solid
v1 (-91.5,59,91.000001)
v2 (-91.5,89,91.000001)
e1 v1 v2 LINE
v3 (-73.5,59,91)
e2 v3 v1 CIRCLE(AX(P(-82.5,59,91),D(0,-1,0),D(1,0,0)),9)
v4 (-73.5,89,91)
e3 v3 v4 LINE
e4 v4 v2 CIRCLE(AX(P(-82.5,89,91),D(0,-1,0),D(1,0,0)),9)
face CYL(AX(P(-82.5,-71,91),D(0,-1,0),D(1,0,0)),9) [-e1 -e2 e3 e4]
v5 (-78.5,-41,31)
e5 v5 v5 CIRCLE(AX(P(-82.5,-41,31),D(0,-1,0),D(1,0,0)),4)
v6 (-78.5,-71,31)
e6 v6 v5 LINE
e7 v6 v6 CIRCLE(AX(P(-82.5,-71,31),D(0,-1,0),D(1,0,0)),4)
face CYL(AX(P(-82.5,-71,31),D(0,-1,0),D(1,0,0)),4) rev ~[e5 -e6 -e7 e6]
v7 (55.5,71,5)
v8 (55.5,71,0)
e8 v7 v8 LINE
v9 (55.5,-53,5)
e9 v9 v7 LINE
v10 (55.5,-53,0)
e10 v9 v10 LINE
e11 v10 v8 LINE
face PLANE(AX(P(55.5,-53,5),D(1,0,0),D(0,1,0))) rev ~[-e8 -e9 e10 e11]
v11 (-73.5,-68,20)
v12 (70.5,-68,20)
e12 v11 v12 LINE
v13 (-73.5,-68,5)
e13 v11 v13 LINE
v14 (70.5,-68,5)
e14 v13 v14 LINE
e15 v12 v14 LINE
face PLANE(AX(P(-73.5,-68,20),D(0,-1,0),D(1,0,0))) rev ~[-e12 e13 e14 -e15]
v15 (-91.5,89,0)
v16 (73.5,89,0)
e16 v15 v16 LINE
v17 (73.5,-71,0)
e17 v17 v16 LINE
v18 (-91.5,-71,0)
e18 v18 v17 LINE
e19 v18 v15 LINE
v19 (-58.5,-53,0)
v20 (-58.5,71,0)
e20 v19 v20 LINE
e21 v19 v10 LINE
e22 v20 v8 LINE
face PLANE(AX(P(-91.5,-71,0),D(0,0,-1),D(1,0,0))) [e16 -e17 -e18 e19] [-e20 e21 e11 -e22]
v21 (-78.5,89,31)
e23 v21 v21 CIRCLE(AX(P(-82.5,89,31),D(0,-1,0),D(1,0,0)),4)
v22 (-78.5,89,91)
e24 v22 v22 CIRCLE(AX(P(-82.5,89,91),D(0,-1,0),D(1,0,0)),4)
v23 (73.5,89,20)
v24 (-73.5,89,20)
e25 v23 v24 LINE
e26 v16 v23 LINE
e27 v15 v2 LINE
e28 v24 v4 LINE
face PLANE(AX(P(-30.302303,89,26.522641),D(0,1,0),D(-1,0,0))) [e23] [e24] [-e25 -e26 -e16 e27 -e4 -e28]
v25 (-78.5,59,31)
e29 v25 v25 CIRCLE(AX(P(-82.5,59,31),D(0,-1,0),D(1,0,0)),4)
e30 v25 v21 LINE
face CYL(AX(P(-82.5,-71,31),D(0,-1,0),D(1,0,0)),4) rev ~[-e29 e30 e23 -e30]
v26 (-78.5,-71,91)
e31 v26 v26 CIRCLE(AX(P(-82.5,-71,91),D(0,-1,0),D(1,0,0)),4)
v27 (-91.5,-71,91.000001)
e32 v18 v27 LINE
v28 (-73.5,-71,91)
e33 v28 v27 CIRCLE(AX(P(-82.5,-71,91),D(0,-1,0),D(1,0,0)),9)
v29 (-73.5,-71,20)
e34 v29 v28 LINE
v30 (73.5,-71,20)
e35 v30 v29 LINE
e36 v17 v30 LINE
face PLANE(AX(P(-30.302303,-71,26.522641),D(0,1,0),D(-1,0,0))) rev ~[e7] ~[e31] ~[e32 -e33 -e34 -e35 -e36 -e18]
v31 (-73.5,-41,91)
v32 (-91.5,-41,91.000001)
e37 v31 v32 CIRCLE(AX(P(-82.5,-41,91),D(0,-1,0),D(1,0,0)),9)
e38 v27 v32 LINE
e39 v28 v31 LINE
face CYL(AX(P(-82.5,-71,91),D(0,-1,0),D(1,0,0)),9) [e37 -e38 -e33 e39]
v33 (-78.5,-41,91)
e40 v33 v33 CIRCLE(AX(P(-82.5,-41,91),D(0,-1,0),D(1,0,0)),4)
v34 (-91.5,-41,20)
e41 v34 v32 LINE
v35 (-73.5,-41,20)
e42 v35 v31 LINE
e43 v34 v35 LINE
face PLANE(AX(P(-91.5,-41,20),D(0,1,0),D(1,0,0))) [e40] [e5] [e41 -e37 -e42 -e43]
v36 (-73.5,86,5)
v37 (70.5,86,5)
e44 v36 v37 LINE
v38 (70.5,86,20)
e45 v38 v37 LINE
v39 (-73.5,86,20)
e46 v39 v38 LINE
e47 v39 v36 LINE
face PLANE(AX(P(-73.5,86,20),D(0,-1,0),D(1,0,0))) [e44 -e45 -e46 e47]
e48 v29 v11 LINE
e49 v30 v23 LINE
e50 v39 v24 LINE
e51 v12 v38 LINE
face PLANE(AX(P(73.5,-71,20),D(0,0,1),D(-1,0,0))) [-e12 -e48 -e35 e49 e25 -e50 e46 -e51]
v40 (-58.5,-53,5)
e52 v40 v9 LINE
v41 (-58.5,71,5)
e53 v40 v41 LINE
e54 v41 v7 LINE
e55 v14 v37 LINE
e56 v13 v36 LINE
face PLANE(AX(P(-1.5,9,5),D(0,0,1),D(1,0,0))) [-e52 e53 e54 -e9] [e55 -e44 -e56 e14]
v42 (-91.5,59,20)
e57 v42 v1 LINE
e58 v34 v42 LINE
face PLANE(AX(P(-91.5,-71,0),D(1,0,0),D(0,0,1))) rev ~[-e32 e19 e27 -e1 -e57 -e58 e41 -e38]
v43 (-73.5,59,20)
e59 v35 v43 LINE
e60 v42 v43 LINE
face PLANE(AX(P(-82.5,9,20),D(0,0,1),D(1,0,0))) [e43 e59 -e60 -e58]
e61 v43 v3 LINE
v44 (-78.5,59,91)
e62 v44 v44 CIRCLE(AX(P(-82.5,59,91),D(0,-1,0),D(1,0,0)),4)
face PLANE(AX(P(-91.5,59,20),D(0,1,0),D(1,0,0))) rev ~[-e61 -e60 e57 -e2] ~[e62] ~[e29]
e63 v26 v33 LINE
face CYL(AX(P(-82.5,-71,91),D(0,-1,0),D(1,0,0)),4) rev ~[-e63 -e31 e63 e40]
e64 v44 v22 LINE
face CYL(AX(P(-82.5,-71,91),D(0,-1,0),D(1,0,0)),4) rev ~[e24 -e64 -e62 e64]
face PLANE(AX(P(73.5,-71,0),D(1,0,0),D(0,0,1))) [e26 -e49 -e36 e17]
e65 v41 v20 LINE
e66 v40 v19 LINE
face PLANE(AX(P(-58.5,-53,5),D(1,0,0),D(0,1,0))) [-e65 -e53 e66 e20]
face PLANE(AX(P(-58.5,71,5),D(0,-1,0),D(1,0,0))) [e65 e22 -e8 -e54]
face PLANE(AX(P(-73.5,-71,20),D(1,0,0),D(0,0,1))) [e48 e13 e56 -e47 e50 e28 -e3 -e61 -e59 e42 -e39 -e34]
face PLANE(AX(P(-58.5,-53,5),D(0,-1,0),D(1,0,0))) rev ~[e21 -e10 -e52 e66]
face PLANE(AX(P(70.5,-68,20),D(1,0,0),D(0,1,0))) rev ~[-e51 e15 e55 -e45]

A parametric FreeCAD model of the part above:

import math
import FreeCAD as App
import Part
import Sketcher
from FreeCAD import Vector


def add_polygon(sketch, points):
    """Adds a closed chain of lines whose ends are joined by coincident constraints."""
    first, n = sketch.GeometryCount, len(points)
    for a, b in zip(points, points[1:] + points[:1]):
        sketch.addGeometry(Part.LineSegment(App.Vector(*a, 0), App.Vector(*b, 0)), False)
    for i in range(n):
        sketch.addConstraint(Sketcher.Constraint("Coincident", first + i, 2, first + (i + 1) % n, 1))

doc = App.newDocument("Part")
params = doc.addObject("Spreadsheet::Sheet", "Params")
for row, (alias, value) in enumerate([
    ("sketch1_width", "18 mm"),
    ("sketch1_height", "100 mm"),
    ("pad1_length", "80 mm"),
    ("sketch2_width", "144 mm"),
    ("sketch2_height", "154 mm"),
    ("pad2_length", "15 mm"),
    ("sketch3_width", "114 mm"),
    ("sketch3_height", "124 mm"),
    ("pad3_length", "5 mm"),
    ("sketch4_diameter", "8 mm"),
    ("sketch4_radius", "9 mm"),
    ("sketch4_width", "165 mm"),
    ("sketch4_height", "91.000001 mm"),
    ("sketch4_height2", "20 mm"),
    ("pad4_length", "160 mm"),
], start=1):
    params.set(f"A{row}", alias)
    params.set(f"B{row}", "=" + value)
    params.setAlias(f"B{row}", alias)

body = doc.addObject("PartDesign::Body", "Body")

sketch1 = doc.addObject("Sketcher::SketchObject", "Sketch")
body.addObject(sketch1)
sketch1.AttachmentSupport = (doc.XY_Plane, [""])
sketch1.MapMode = "FlatFace"
sketch1.AttachmentOffset = App.Placement(Vector(0, 0, 20), App.Rotation())
add_polygon(sketch1, [(-92, 59), (-92, -41), (-74, -41), (-74, 59)])
sketch1.addConstraint(Sketcher.Constraint("Vertical", 0))
sketch1.addConstraint(Sketcher.Constraint("Horizontal", 1))
sketch1.addConstraint(Sketcher.Constraint("Vertical", 2))
sketch1.addConstraint(Sketcher.Constraint("Horizontal", 3))
sketch1.addConstraint(Sketcher.Constraint("DistanceX", 1, 1, 1, 2, 18.0))
sketch1.addConstraint(Sketcher.Constraint("DistanceY", 0, 2, 0, 1, 100.0))
sketch1.addConstraint(Sketcher.Constraint("DistanceY", 0, 2, -1, 1, 41.0))
sketch1.addConstraint(Sketcher.Constraint("DistanceX", 0, 2, -1, 1, 91.5))
sketch1.setExpression("Constraints[8]", "Params.sketch1_width")
sketch1.setExpression("Constraints[9]", "Params.sketch1_height")
pad1 = doc.addObject("PartDesign::Pad", "Pad")
body.addObject(pad1)
pad1.Profile = sketch1
pad1.setExpression("Length", "Params.pad1_length")
body2 = doc.addObject("PartDesign::Body", "Body001")

sketch2 = doc.addObject("Sketcher::SketchObject", "Sketch001")
body2.addObject(sketch2)
sketch2.AttachmentSupport = (doc.getObject("XY_Plane001"), [""])
sketch2.MapMode = "FlatFace"
sketch2.AttachmentOffset = App.Placement(Vector(0, 0, 20), App.Rotation())
add_polygon(sketch2, [(-74, 86), (-74, -68), (70, -68), (70, 86)])
sketch2.addConstraint(Sketcher.Constraint("Vertical", 0))
sketch2.addConstraint(Sketcher.Constraint("Horizontal", 1))
sketch2.addConstraint(Sketcher.Constraint("Vertical", 2))
sketch2.addConstraint(Sketcher.Constraint("Horizontal", 3))
sketch2.addConstraint(Sketcher.Constraint("DistanceX", 1, 1, 1, 2, 144.0))
sketch2.addConstraint(Sketcher.Constraint("DistanceY", 0, 2, 0, 1, 154.0))
sketch2.addConstraint(Sketcher.Constraint("DistanceY", 0, 2, -1, 1, 68.0))
sketch2.addConstraint(Sketcher.Constraint("DistanceX", 0, 2, -1, 1, 73.5))
sketch2.setExpression("Constraints[8]", "Params.sketch2_width")
sketch2.setExpression("Constraints[9]", "Params.sketch2_height")
pad2 = doc.addObject("PartDesign::Pad", "Pad001")
body2.addObject(pad2)
pad2.Profile = sketch2
pad2.setExpression("Length", "Params.pad2_length")
pad2.Reversed = True
body3 = doc.addObject("PartDesign::Body", "Body002")

sketch3 = doc.addObject("Sketcher::SketchObject", "Sketch002")
body3.addObject(sketch3)
sketch3.AttachmentSupport = (doc.getObject("XY_Plane002"), [""])
sketch3.MapMode = "FlatFace"
sketch3.AttachmentOffset = App.Placement(Vector(0, 0, 5), App.Rotation())
add_polygon(sketch3, [(-58, 71), (-58, -53), (56, -53), (56, 71)])
sketch3.addConstraint(Sketcher.Constraint("Vertical", 0))
sketch3.addConstraint(Sketcher.Constraint("Horizontal", 1))
sketch3.addConstraint(Sketcher.Constraint("Vertical", 2))
sketch3.addConstraint(Sketcher.Constraint("Horizontal", 3))
sketch3.addConstraint(Sketcher.Constraint("DistanceX", 1, 1, 1, 2, 114.0))
sketch3.addConstraint(Sketcher.Constraint("DistanceY", 0, 2, 0, 1, 124.0))
sketch3.addConstraint(Sketcher.Constraint("DistanceY", 0, 2, -1, 1, 53.0))
sketch3.addConstraint(Sketcher.Constraint("DistanceX", 0, 2, -1, 1, 58.5))
sketch3.setExpression("Constraints[8]", "Params.sketch3_width")
sketch3.setExpression("Constraints[9]", "Params.sketch3_height")
pad3 = doc.addObject("PartDesign::Pad", "Pad002")
body3.addObject(pad3)
pad3.Profile = sketch3
pad3.setExpression("Length", "Params.pad3_length")
pad3.Reversed = True
doc.recompute()

boolean = doc.addObject("PartDesign::Boolean", "Boolean")
body3.addObject(boolean)
boolean.Type = "Fuse"
boolean.addObjects([body2])
body4 = doc.addObject("PartDesign::Body", "Body003")

sketch4 = doc.addObject("Sketcher::SketchObject", "Sketch003")
body4.addObject(sketch4)
sketch4.AttachmentSupport = (doc.getObject("XZ_Plane003"), [""])
sketch4.MapMode = "FlatFace"
sketch4.AttachmentOffset = App.Placement(Vector(0, 0, 71), App.Rotation())
sketch4.addGeometry(Part.LineSegment(Vector(-91.5, 91, 0), Vector(-91.5, 0, 0)), False)
sketch4.addGeometry(Part.LineSegment(Vector(-91.5, 0, 0), Vector(73.5, 0, 0)), False)
sketch4.addGeometry(Part.LineSegment(Vector(73.5, 0, 0), Vector(73.5, 20, 0)), False)
sketch4.addGeometry(Part.LineSegment(Vector(73.5, 20, 0), Vector(-73.5, 20, 0)), False)
sketch4.addGeometry(Part.LineSegment(Vector(-73.5, 20, 0), Vector(-73.5, 91, 0)), False)
sketch4.addGeometry(Part.ArcOfCircle(Part.Circle(Vector(-82.5, 91, 0), Vector(0, 0, 1), 9), math.radians(0), math.radians(180)), False)
sketch4.addGeometry(Part.Circle(Vector(-82.5, 31, 0), Vector(0, 0, 1), 4), False)
sketch4.addGeometry(Part.Circle(Vector(-82.5, 91, 0), Vector(0, 0, 1), 4), False)
sketch4.addConstraint(Sketcher.Constraint("Coincident", 0, 2, 1, 1))
sketch4.addConstraint(Sketcher.Constraint("Coincident", 1, 2, 2, 1))
sketch4.addConstraint(Sketcher.Constraint("Coincident", 2, 2, 3, 1))
sketch4.addConstraint(Sketcher.Constraint("Coincident", 3, 2, 4, 1))
sketch4.addConstraint(Sketcher.Constraint("Tangent", 4, 2, 5, 1))
sketch4.addConstraint(Sketcher.Constraint("Tangent", 5, 2, 0, 1))
sketch4.addConstraint(Sketcher.Constraint("Vertical", 0))
sketch4.addConstraint(Sketcher.Constraint("Horizontal", 1))
sketch4.addConstraint(Sketcher.Constraint("Vertical", 2))
sketch4.addConstraint(Sketcher.Constraint("Horizontal", 3))
sketch4.addConstraint(Sketcher.Constraint("Vertical", 4))
sketch4.addConstraint(Sketcher.Constraint("Coincident", 7, 3, 5, 3))
sketch4.addConstraint(Sketcher.Constraint("Equal", 6, 7))
sketch4.addConstraint(Sketcher.Constraint("PointOnObject", 0, 2, -1))
sketch4.addConstraint(Sketcher.Constraint("Vertical", 5, 3, 6, 3))
sketch4.addConstraint(Sketcher.Constraint("Diameter", 6, 8.0))
sketch4.addConstraint(Sketcher.Constraint("Radius", 5, 9.0))
sketch4.addConstraint(Sketcher.Constraint("DistanceX", 1, 1, 1, 2, 165.0))
sketch4.addConstraint(Sketcher.Constraint("DistanceY", 0, 2, 0, 1, 91.000001))
sketch4.addConstraint(Sketcher.Constraint("DistanceY", 2, 1, 2, 2, 20.0))
sketch4.addConstraint(Sketcher.Constraint("DistanceY", -1, 1, 6, 3, 31.0))
sketch4.addConstraint(Sketcher.Constraint("DistanceX", 5, 3, -1, 1, 82.5))
sketch4.setExpression("Constraints[15]", "Params.sketch4_diameter")
sketch4.setExpression("Constraints[16]", "Params.sketch4_radius")
sketch4.setExpression("Constraints[17]", "Params.sketch4_width")
sketch4.setExpression("Constraints[18]", "Params.sketch4_height")
sketch4.setExpression("Constraints[19]", "Params.sketch4_height2")
pad4 = doc.addObject("PartDesign::Pad", "Pad003")
body4.addObject(pad4)
pad4.Profile = sketch4
pad4.setExpression("Length", "Params.pad4_length")
pad4.Reversed = True
doc.recompute()

boolean2 = doc.addObject("PartDesign::Boolean", "Boolean001")
body4.addObject(boolean2)
boolean2.Type = "Cut"
boolean2.addObjects([body3])
doc.recompute()

boolean3 = doc.addObject("PartDesign::Boolean", "Boolean002")
body4.addObject(boolean3)
boolean3.Type = "Cut"
boolean3.addObjects([body])

doc.recompute()
